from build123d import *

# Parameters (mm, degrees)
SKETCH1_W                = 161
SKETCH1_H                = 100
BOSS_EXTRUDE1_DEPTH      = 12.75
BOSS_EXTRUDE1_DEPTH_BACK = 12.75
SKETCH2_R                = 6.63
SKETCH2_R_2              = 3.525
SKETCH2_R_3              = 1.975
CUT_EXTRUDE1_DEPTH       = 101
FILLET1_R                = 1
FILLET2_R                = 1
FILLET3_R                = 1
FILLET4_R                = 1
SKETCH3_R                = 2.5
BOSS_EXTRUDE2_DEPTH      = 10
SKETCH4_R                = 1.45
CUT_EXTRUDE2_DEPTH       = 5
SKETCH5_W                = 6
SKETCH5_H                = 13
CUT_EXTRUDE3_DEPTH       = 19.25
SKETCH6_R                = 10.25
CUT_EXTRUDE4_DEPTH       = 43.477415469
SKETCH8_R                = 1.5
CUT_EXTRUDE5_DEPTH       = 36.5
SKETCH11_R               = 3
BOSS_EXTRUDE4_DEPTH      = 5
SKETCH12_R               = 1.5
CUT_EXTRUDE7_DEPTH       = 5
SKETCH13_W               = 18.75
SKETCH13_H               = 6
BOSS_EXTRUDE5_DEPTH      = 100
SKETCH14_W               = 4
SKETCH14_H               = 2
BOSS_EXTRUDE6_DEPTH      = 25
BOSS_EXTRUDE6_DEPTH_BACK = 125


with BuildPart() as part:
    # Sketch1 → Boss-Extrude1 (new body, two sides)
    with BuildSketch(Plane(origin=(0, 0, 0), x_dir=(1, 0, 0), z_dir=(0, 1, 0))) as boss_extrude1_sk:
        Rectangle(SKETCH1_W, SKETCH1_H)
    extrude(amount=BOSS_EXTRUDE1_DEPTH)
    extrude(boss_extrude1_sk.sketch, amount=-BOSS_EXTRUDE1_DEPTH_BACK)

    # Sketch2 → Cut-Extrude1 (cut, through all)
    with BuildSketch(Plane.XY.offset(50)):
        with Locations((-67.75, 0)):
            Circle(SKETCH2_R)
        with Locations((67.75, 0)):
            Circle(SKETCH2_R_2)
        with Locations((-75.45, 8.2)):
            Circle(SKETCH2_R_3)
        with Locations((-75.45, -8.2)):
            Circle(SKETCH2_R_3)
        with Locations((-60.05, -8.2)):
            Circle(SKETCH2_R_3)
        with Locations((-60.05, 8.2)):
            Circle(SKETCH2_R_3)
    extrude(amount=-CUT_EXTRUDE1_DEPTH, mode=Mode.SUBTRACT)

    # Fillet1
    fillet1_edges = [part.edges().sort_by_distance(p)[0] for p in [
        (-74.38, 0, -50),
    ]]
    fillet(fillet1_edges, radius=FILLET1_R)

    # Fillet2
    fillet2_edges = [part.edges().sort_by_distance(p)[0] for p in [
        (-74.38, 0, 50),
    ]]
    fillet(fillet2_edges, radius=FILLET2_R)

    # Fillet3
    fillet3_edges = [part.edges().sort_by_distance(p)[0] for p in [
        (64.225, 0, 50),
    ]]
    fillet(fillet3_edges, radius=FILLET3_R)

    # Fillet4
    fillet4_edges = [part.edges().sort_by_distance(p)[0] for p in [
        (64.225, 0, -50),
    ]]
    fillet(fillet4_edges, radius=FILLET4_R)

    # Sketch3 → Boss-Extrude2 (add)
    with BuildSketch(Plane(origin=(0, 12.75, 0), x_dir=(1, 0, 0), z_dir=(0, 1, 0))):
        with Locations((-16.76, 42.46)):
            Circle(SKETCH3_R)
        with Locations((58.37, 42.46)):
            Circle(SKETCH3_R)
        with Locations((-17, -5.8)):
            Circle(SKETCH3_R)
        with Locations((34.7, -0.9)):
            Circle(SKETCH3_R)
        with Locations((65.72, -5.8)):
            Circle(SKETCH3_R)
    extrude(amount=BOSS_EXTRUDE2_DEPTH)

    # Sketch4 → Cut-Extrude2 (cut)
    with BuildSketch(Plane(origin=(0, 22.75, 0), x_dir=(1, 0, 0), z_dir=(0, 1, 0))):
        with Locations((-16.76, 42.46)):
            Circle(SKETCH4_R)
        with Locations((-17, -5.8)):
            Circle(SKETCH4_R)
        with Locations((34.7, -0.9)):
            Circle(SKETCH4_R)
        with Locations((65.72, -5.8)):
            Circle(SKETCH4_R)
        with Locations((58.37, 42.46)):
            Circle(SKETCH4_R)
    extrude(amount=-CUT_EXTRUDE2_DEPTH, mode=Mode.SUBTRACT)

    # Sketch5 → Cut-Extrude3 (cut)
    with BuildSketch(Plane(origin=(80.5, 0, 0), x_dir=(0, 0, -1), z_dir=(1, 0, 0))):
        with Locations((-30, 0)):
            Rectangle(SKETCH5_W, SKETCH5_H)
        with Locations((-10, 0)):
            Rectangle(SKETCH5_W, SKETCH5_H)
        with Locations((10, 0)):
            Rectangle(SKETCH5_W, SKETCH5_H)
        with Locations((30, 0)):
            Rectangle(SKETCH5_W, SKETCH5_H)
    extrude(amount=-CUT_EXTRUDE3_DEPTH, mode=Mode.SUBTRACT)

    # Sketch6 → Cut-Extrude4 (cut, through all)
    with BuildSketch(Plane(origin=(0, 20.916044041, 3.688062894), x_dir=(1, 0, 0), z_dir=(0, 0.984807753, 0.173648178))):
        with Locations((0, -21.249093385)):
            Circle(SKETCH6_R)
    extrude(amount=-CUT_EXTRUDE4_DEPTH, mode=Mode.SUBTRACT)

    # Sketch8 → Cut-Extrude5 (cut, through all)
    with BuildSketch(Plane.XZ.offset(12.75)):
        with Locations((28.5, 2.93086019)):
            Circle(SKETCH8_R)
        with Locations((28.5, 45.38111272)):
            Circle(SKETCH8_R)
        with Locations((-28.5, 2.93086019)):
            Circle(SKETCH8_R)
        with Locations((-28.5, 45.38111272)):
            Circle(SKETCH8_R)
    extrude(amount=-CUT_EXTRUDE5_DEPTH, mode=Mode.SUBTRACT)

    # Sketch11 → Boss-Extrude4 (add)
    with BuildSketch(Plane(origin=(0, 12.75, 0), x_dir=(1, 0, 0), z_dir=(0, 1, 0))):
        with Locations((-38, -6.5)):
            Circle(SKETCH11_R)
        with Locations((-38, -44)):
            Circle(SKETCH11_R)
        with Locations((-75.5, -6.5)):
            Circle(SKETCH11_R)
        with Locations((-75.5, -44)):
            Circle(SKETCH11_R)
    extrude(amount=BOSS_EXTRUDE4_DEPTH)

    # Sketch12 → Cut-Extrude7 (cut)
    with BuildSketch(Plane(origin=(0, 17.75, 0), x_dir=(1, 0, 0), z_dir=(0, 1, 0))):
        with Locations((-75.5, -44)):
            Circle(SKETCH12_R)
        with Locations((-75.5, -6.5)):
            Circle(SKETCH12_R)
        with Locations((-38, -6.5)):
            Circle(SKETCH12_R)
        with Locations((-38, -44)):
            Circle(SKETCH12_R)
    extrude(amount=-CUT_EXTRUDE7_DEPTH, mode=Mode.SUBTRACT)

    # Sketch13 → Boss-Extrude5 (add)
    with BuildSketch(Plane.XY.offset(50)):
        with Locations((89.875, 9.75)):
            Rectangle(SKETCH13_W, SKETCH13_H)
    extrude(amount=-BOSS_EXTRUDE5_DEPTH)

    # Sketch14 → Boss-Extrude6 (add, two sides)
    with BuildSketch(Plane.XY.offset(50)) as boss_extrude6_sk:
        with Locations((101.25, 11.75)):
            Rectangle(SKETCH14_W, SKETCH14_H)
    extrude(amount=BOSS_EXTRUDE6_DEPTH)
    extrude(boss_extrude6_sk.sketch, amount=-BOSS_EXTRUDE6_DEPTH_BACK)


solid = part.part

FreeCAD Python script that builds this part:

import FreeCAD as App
import Part
import Sketcher
from FreeCAD import Vector


def edges_at(feature, points):
    """Names of the edges that pass closest to the given points."""
    edges = feature.Shape.Edges
    near = lambda p: min(range(len(edges)), key=lambda i: edges[i].distToShape(Part.Vertex(*p))[0])
    return sorted({f"Edge{near(p) + 1}" for p in points})


def add_polygon(sketch, points):
    """Adds a closed chain of lines whose ends are joined by coincident constraints."""
    first, n = sketch.GeometryCount, len(points)
    for a, b in zip(points, points[1:] + points[:1]):
        sketch.addGeometry(Part.LineSegment(App.Vector(*a, 0), App.Vector(*b, 0)), False)
    for i in range(n):
        sketch.addConstraint(Sketcher.Constraint("Coincident", first + i, 2, first + (i + 1) % n, 1))

doc = App.newDocument("Part")
body = doc.addObject("PartDesign::Body", "Body")

sketch1 = body.newObject("Sketcher::SketchObject", "Sketch")
sketch1.AttachmentSupport = (doc.getObject("XZ_Plane"), [""])
sketch1.MapMode = "FlatFace"
add_polygon(sketch1, [(-80, -50), (-80, 50), (80, 50), (80, -50)])
sketch1.addConstraint([
    Sketcher.Constraint("Vertical", 0),
    Sketcher.Constraint("Horizontal", 1),
    Sketcher.Constraint("Vertical", 2),
    Sketcher.Constraint("Horizontal", 3),
    Sketcher.Constraint("Symmetric", 0, 2, 2, 2, -1, 1),
    Sketcher.Constraint("DistanceX", 1, 1, 1, 2, 161.0),
    Sketcher.Constraint("DistanceY", 0, 1, 0, 2, 100.0),
])
pad1 = body.newObject("PartDesign::Pad", "Pad")
pad1.Profile = sketch1
pad1.Type = "TwoLengths"
pad1.Length = 12.75
pad1.Length2 = 12.75
pad1.Reversed = True

sketch2 = body.newObject("Sketcher::SketchObject", "Sketch001")
sketch2.AttachmentSupport = (doc.getObject("XY_Plane"), [""])
sketch2.MapMode = "FlatFace"
sketch2.AttachmentOffset = App.Placement(Vector(0, 0, 50), App.Rotation())
sketch2.addGeometry([
    Part.Circle(Vector(-67.8, 0, 0), Vector(0, 0, 1), 6.6),
    Part.Circle(Vector(67.8, 0, 0), Vector(0, 0, 1), 3.5),
    Part.Circle(Vector(-75.5, 8.2, 0), Vector(0, 0, 1), 2),
    Part.Circle(Vector(-75.5, -8.2, 0), Vector(0, 0, 1), 2),
    Part.Circle(Vector(-60, -8.2, 0), Vector(0, 0, 1), 2),
    Part.Circle(Vector(-60, 8.2, 0), Vector(0, 0, 1), 2),
], False)
sketch2.addConstraint([
    Sketcher.Constraint("Equal", 2, 3),
    Sketcher.Constraint("Equal", 3, 4),
    Sketcher.Constraint("Equal", 4, 5),
    Sketcher.Constraint("Symmetric", 0, 3, 1, 3, -1, 1),
    Sketcher.Constraint("Symmetric", 2, 3, 3, 3, -1),
    Sketcher.Constraint("Symmetric", 4, 3, 5, 3, -1),
    Sketcher.Constraint("PointOnObject", 0, 3, -1),
    Sketcher.Constraint("Horizontal", 3, 3, 4, 3),
    Sketcher.Constraint("Diameter", 0, 13.26),
    Sketcher.Constraint("Diameter", 1, 7.05),
    Sketcher.Constraint("Diameter", 2, 3.95),
    Sketcher.Constraint("DistanceY", -1, 1, 2, 3, 8.2),
    Sketcher.Constraint("DistanceX", 0, 3, 1, 3, 135.5),
    Sketcher.Constraint("DistanceX", 2, 3, 0, 3, 7.7),
    Sketcher.Constraint("DistanceX", 0, 3, 4, 3, 7.7),
])
pocket1 = body.newObject("PartDesign::Pocket", "Pocket")
pocket1.Profile = sketch2
pocket1.Type = "ThroughAll"
doc.recompute()

fillet = body.newObject("PartDesign::Fillet", "Fillet")
fillet.Base = (pocket1, edges_at(pocket1, [(-74.38, 0, -50)]))
fillet.Radius = 1
doc.recompute()

fillet2 = body.newObject("PartDesign::Fillet", "Fillet001")
fillet2.Base = (fillet, edges_at(fillet, [(-74.38, 0, 50)]))
fillet2.Radius = 1
doc.recompute()

fillet3 = body.newObject("PartDesign::Fillet", "Fillet002")
fillet3.Base = (fillet2, edges_at(fillet2, [(64.225, 0, 50)]))
fillet3.Radius = 1
doc.recompute()

fillet4 = body.newObject("PartDesign::Fillet", "Fillet003")
fillet4.Base = (fillet3, edges_at(fillet3, [(64.225, 0, -50)]))
fillet4.Radius = 1

sketch3 = body.newObject("Sketcher::SketchObject", "Sketch002")
sketch3.AttachmentSupport = (doc.getObject("XZ_Plane"), [""])
sketch3.MapMode = "FlatFace"
sketch3.AttachmentOffset = App.Placement(Vector(0, 0, -12.75), App.Rotation())
sketch3.addGeometry([
    Part.Circle(Vector(-16.8, -42.5, 0), Vector(0, 0, 1), 2.5),
    Part.Circle(Vector(58.4, -42.5, 0), Vector(0, 0, 1), 2.5),
    Part.Circle(Vector(-17, 5.8, 0), Vector(0, 0, 1), 2.5),
    Part.Circle(Vector(34.7, 0.9, 0), Vector(0, 0, 1), 2.5),
    Part.Circle(Vector(65.7, 5.8, 0), Vector(0, 0, 1), 2.5),
], False)
sketch3.addConstraint([
    Sketcher.Constraint("Equal", 0, 1),
    Sketcher.Constraint("Equal", 1, 2),
    Sketcher.Constraint("Equal", 2, 3),
    Sketcher.Constraint("Equal", 3, 4),
    Sketcher.Constraint("Horizontal", 0, 3, 1, 3),
    Sketcher.Constraint("Horizontal", 2, 3, 4, 3),
    Sketcher.Constraint("Diameter", 0, 5.0),
    Sketcher.Constraint("DistanceX", 2, 3, -1, 1, 17.0),
    Sketcher.Constraint("DistanceY", -1, 1, 2, 3, 5.8),
    Sketcher.Constraint("DistanceX", -1, 1, 3, 3, 34.7),
    Sketcher.Constraint("DistanceY", -1, 1, 3, 3, 0.9),
    Sketcher.Constraint("DistanceX", 0, 3, -1, 1, 16.76),
    Sketcher.Constraint("DistanceY", 0, 3, -1, 1, 42.46),
    Sketcher.Constraint("DistanceX", -1, 1, 1, 3, 58.37),
    Sketcher.Constraint("DistanceX", -1, 1, 4, 3, 65.72),
])
pad2 = body.newObject("PartDesign::Pad", "Pad001")
pad2.Profile = sketch3
pad2.Length = 10
pad2.Reversed = True

sketch4 = body.newObject("Sketcher::SketchObject", "Sketch003")
sketch4.AttachmentSupport = (doc.getObject("XZ_Plane"), [""])
sketch4.MapMode = "FlatFace"
sketch4.AttachmentOffset = App.Placement(Vector(0, 0, -22.75), App.Rotation())
sketch4.addGeometry([
    Part.Circle(Vector(-16.8, -42.5, 0), Vector(0, 0, 1), 1.4),
    Part.Circle(Vector(-17, 5.8, 0), Vector(0, 0, 1), 1.4),
    Part.Circle(Vector(34.7, 0.9, 0), Vector(0, 0, 1), 1.4),
    Part.Circle(Vector(65.7, 5.8, 0), Vector(0, 0, 1), 1.4),
    Part.Circle(Vector(58.4, -42.5, 0), Vector(0, 0, 1), 1.4),
], False)
sketch4.addConstraint([
    Sketcher.Constraint("Equal", 0, 1),
    Sketcher.Constraint("Equal", 1, 2),
    Sketcher.Constraint("Equal", 2, 3),
    Sketcher.Constraint("Equal", 3, 4),
    Sketcher.Constraint("Horizontal", 1, 3, 3, 3),
    Sketcher.Constraint("Horizontal", 0, 3, 4, 3),
    Sketcher.Constraint("Diameter", 0, 2.9),
    Sketcher.Constraint("DistanceX", 1, 3, -1, 1, 17.0),
    Sketcher.Constraint("DistanceY", -1, 1, 1, 3, 5.8),
    Sketcher.Constraint("DistanceX", -1, 1, 2, 3, 34.7),
    Sketcher.Constraint("DistanceY", -1, 1, 2, 3, 0.9),
    Sketcher.Constraint("DistanceX", 0, 3, -1, 1, 16.76),
    Sketcher.Constraint("DistanceY", 0, 3, -1, 1, 42.46),
    Sketcher.Constraint("DistanceX", -1, 1, 3, 3, 65.72),
    Sketcher.Constraint("DistanceX", -1, 1, 4, 3, 58.37),
])
pocket2 = body.newObject("PartDesign::Pocket", "Pocket001")
pocket2.Profile = sketch4
pocket2.Length = 5
pocket2.Reversed = True

sketch5 = body.newObject("Sketcher::SketchObject", "Sketch004")
sketch5.AttachmentSupport = (doc.getObject("YZ_Plane"), [""])
sketch5.MapMode = "FlatFace"
sketch5.AttachmentOffset = App.Placement(Vector(0, 0, 80.5), App.Rotation())
add_polygon(sketch5, [(6, 33), (-6, 33), (-6, 27), (6, 27)])
add_polygon(sketch5, [(6, 13), (-6, 13), (-6, 7), (6, 7)])
add_polygon(sketch5, [(6, -7), (-6, -7), (-6, -13), (6, -13)])
add_polygon(sketch5, [(6, -27), (-6, -27), (-6, -33), (6, -33)])
sketch5.addConstraint([
    Sketcher.Constraint("Horizontal", 0),
    Sketcher.Constraint("Vertical", 1),
    Sketcher.Constraint("Horizontal", 2),
    Sketcher.Constraint("Vertical", 3),
    Sketcher.Constraint("Horizontal", 4),
    Sketcher.Constraint("Vertical", 5),
    Sketcher.Constraint("Horizontal", 6),
    Sketcher.Constraint("Vertical", 7),
    Sketcher.Constraint("Horizontal", 8),
    Sketcher.Constraint("Vertical", 9),
    Sketcher.Constraint("Horizontal", 10),
    Sketcher.Constraint("Vertical", 11),
    Sketcher.Constraint("Horizontal", 12),
    Sketcher.Constraint("Vertical", 13),
    Sketcher.Constraint("Horizontal", 14),
    Sketcher.Constraint("Vertical", 15),
    Sketcher.Constraint("Symmetric", 6, 2, 8, 2, -1, 1),
    Sketcher.Constraint("Symmetric", 4, 2, 10, 2, -1, 1),
    Sketcher.Constraint("Symmetric", 2, 2, 12, 2, -1, 1),
    Sketcher.Constraint("Symmetric", 0, 2, 14, 2, -1, 1),
    Sketcher.Constraint("Vertical", 1, 2, 4, 2),
    Sketcher.Constraint("Vertical", 3, 2, 6, 2),
    Sketcher.Constraint("Vertical", 5, 2, 8, 2),
    Sketcher.Constraint("Equal", 3, 5),
    Sketcher.Constraint("DistanceX", 0, 2, 0, 1, 13.0),
    Sketcher.Constraint("DistanceY", 1, 2, 1, 1, 6.0),
    Sketcher.Constraint("DistanceY", -1, 1, 0, 2, 33.0),
    Sketcher.Constraint("DistanceY", -1, 1, 4, 2, 13.0),
])
pocket3 = body.newObject("PartDesign::Pocket", "Pocket002")
pocket3.Profile = sketch5
pocket3.Length = 19.25

sketch6 = body.newObject("Sketcher::SketchObject", "Sketch005")
sketch6.Placement = App.Placement(Vector(0, 20.916044, 3.688063), App.Rotation(Vector(1, 0, 0), Vector(0, 0.173648178, -0.984807753), Vector(0, 0.984807753, 0.173648178), "ZXY"))
sketch6.addGeometry(Part.Circle(Vector(0, -21, 0), Vector(0, 0, 1), 10), False)
sketch6.addConstraint([
    Sketcher.Constraint("PointOnObject", 0, 3, -2),
    Sketcher.Constraint("Diameter", 0, 20.5),
    Sketcher.Constraint("DistanceY", 0, 3, -1, 1, 21.249093),
])
pocket4 = body.newObject("PartDesign::Pocket", "Pocket003")
pocket4.Profile = sketch6
pocket4.Type = "ThroughAll"

sketch7 = body.newObject("Sketcher::SketchObject", "Sketch006")
sketch7.AttachmentSupport = (doc.getObject("XZ_Plane"), [""])
sketch7.MapMode = "FlatFace"
sketch7.AttachmentOffset = App.Placement(Vector(0, 0, 12.75), App.Rotation())
sketch7.addGeometry([
    Part.Circle(Vector(28.5, 2.9, 0), Vector(0, 0, 1), 1.5),
    Part.Circle(Vector(28.5, 45.4, 0), Vector(0, 0, 1), 1.5),
    Part.Circle(Vector(-28.5, 2.9, 0), Vector(0, 0, 1), 1.5),
    Part.Circle(Vector(-28.5, 45.4, 0), Vector(0, 0, 1), 1.5),
], False)
sketch7.addConstraint([
    Sketcher.Constraint("Equal", 0, 1),
    Sketcher.Constraint("Equal", 1, 2),
    Sketcher.Constraint("Equal", 2, 3),
    Sketcher.Constraint("Symmetric", 0, 3, 2, 3, -2),
    Sketcher.Constraint("Symmetric", 1, 3, 3, 3, -2),
    Sketcher.Constraint("Vertical", 0, 3, 1, 3),
    Sketcher.Constraint("Diameter", 0, 3.0),
    Sketcher.Constraint("DistanceX", 2, 3, 0, 3, 57.0),
    Sketcher.Constraint("DistanceY", -1, 1, 0, 3, 2.93086),
    Sketcher.Constraint("DistanceY", -1, 1, 1, 3, 45.381113),
])
pocket5 = body.newObject("PartDesign::Pocket", "Pocket004")
pocket5.Profile = sketch7
pocket5.Type = "ThroughAll"

sketch8 = body.newObject("Sketcher::SketchObject", "Sketch007")
sketch8.AttachmentSupport = (doc.getObject("XZ_Plane"), [""])
sketch8.MapMode = "FlatFace"
sketch8.AttachmentOffset = App.Placement(Vector(0, 0, -12.75), App.Rotation())
sketch8.addGeometry([
    Part.Circle(Vector(-38, 6.5, 0), Vector(0, 0, 1), 3),
    Part.Circle(Vector(-38, 44, 0), Vector(0, 0, 1), 3),
    Part.Circle(Vector(-75.5, 6.5, 0), Vector(0, 0, 1), 3),
    Part.Circle(Vector(-75.5, 44, 0), Vector(0, 0, 1), 3),
], False)
sketch8.addConstraint([
    Sketcher.Constraint("Equal", 0, 1),
    Sketcher.Constraint("Equal", 1, 2),
    Sketcher.Constraint("Equal", 2, 3),
    Sketcher.Constraint("Horizontal", 0, 3, 2, 3),
    Sketcher.Constraint("Horizontal", 1, 3, 3, 3),
    Sketcher.Constraint("Vertical", 0, 3, 1, 3),
    Sketcher.Constraint("Vertical", 2, 3, 3, 3),
    Sketcher.Constraint("Diameter", 0, 6.0),
    Sketcher.Constraint("DistanceX", 0, 3, -1, 1, 38.0),
    Sketcher.Constraint("DistanceY", -1, 1, 1, 3, 44.0),
    Sketcher.Constraint("DistanceY", -1, 1, 0, 3, 6.5),
    Sketcher.Constraint("DistanceX", 2, 3, -1, 1, 75.5),
])
pad3 = body.newObject("PartDesign::Pad", "Pad002")
pad3.Profile = sketch8
pad3.Length = 5
pad3.Reversed = True

sketch9 = body.newObject("Sketcher::SketchObject", "Sketch008")
sketch9.AttachmentSupport = (doc.getObject("XZ_Plane"), [""])
sketch9.MapMode = "FlatFace"
sketch9.AttachmentOffset = App.Placement(Vector(0, 0, -17.75), App.Rotation())
sketch9.addGeometry([
    Part.Circle(Vector(-75.5, 44, 0), Vector(0, 0, 1), 1.5),
    Part.Circle(Vector(-75.5, 6.5, 0), Vector(0, 0, 1), 1.5),
    Part.Circle(Vector(-38, 6.5, 0), Vector(0, 0, 1), 1.5),
    Part.Circle(Vector(-38, 44, 0), Vector(0, 0, 1), 1.5),
], False)
sketch9.addConstraint([
    Sketcher.Constraint("Equal", 0, 1),
    Sketcher.Constraint("Equal", 1, 2),
    Sketcher.Constraint("Equal", 2, 3),
    Sketcher.Constraint("Horizontal", 1, 3, 2, 3),
    Sketcher.Constraint("Horizontal", 0, 3, 3, 3),
    Sketcher.Constraint("Vertical", 0, 3, 1, 3),
    Sketcher.Constraint("Vertical", 2, 3, 3, 3),
    Sketcher.Constraint("Diameter", 0, 3.0),
    Sketcher.Constraint("DistanceY", -1, 1, 0, 3, 44.0),
    Sketcher.Constraint("DistanceX", 2, 3, -1, 1, 38.0),
    Sketcher.Constraint("DistanceX", 0, 3, -1, 1, 75.5),
    Sketcher.Constraint("DistanceY", -1, 1, 1, 3, 6.5),
])
pocket6 = body.newObject("PartDesign::Pocket", "Pocket005")
pocket6.Profile = sketch9
pocket6.Length = 5
pocket6.Reversed = True

sketch10 = body.newObject("Sketcher::SketchObject", "Sketch009")
sketch10.AttachmentSupport = (doc.getObject("XY_Plane"), [""])
sketch10.MapMode = "FlatFace"
sketch10.AttachmentOffset = App.Placement(Vector(0, 0, 50), App.Rotation())
add_polygon(sketch10, [(80, 13), (80, 7), (99, 7), (99, 13)])
sketch10.addConstraint([
    Sketcher.Constraint("Vertical", 0),
    Sketcher.Constraint("Horizontal", 1),
    Sketcher.Constraint("Vertical", 2),
    Sketcher.Constraint("Horizontal", 3),
    Sketcher.Constraint("DistanceY", 0, 2, 0, 1, 6.0),
    Sketcher.Constraint("DistanceX", 1, 1, 1, 2, 18.75),
    Sketcher.Constraint("DistanceX", -1, 1, 0, 2, 80.5),
    Sketcher.Constraint("DistanceY", -1, 1, 0, 2, 6.75),
])
pad4 = body.newObject("PartDesign::Pad", "Pad003")
pad4.Profile = sketch10
pad4.Length = 100
pad4.Reversed = True

sketch11 = body.newObject("Sketcher::SketchObject", "Sketch010")
sketch11.AttachmentSupport = (doc.getObject("XY_Plane"), [""])
sketch11.MapMode = "FlatFace"
sketch11.AttachmentOffset = App.Placement(Vector(0, 0, 50), App.Rotation())
add_polygon(sketch11, [(99.2, 12.8), (99.2, 10.8), (103.2, 10.8), (103.2, 12.8)])
sketch11.addConstraint([
    Sketcher.Constraint("Vertical", 0),
    Sketcher.Constraint("Horizontal", 1),
    Sketcher.Constraint("Vertical", 2),
    Sketcher.Constraint("Horizontal", 3),
    Sketcher.Constraint("DistanceX", 1, 1, 1, 2, 4.0),
    Sketcher.Constraint("DistanceY", 0, 2, 0, 1, 2.0),
    Sketcher.Constraint("DistanceX", -1, 1, 0, 2, 99.25),
    Sketcher.Constraint("DistanceY", -1, 1, 0, 2, 10.75),
])
pad5 = body.newObject("PartDesign::Pad", "Pad004")
pad5.Profile = sketch11
pad5.Type = "TwoLengths"
pad5.Length = 25
pad5.Length2 = 125

doc.recompute()
